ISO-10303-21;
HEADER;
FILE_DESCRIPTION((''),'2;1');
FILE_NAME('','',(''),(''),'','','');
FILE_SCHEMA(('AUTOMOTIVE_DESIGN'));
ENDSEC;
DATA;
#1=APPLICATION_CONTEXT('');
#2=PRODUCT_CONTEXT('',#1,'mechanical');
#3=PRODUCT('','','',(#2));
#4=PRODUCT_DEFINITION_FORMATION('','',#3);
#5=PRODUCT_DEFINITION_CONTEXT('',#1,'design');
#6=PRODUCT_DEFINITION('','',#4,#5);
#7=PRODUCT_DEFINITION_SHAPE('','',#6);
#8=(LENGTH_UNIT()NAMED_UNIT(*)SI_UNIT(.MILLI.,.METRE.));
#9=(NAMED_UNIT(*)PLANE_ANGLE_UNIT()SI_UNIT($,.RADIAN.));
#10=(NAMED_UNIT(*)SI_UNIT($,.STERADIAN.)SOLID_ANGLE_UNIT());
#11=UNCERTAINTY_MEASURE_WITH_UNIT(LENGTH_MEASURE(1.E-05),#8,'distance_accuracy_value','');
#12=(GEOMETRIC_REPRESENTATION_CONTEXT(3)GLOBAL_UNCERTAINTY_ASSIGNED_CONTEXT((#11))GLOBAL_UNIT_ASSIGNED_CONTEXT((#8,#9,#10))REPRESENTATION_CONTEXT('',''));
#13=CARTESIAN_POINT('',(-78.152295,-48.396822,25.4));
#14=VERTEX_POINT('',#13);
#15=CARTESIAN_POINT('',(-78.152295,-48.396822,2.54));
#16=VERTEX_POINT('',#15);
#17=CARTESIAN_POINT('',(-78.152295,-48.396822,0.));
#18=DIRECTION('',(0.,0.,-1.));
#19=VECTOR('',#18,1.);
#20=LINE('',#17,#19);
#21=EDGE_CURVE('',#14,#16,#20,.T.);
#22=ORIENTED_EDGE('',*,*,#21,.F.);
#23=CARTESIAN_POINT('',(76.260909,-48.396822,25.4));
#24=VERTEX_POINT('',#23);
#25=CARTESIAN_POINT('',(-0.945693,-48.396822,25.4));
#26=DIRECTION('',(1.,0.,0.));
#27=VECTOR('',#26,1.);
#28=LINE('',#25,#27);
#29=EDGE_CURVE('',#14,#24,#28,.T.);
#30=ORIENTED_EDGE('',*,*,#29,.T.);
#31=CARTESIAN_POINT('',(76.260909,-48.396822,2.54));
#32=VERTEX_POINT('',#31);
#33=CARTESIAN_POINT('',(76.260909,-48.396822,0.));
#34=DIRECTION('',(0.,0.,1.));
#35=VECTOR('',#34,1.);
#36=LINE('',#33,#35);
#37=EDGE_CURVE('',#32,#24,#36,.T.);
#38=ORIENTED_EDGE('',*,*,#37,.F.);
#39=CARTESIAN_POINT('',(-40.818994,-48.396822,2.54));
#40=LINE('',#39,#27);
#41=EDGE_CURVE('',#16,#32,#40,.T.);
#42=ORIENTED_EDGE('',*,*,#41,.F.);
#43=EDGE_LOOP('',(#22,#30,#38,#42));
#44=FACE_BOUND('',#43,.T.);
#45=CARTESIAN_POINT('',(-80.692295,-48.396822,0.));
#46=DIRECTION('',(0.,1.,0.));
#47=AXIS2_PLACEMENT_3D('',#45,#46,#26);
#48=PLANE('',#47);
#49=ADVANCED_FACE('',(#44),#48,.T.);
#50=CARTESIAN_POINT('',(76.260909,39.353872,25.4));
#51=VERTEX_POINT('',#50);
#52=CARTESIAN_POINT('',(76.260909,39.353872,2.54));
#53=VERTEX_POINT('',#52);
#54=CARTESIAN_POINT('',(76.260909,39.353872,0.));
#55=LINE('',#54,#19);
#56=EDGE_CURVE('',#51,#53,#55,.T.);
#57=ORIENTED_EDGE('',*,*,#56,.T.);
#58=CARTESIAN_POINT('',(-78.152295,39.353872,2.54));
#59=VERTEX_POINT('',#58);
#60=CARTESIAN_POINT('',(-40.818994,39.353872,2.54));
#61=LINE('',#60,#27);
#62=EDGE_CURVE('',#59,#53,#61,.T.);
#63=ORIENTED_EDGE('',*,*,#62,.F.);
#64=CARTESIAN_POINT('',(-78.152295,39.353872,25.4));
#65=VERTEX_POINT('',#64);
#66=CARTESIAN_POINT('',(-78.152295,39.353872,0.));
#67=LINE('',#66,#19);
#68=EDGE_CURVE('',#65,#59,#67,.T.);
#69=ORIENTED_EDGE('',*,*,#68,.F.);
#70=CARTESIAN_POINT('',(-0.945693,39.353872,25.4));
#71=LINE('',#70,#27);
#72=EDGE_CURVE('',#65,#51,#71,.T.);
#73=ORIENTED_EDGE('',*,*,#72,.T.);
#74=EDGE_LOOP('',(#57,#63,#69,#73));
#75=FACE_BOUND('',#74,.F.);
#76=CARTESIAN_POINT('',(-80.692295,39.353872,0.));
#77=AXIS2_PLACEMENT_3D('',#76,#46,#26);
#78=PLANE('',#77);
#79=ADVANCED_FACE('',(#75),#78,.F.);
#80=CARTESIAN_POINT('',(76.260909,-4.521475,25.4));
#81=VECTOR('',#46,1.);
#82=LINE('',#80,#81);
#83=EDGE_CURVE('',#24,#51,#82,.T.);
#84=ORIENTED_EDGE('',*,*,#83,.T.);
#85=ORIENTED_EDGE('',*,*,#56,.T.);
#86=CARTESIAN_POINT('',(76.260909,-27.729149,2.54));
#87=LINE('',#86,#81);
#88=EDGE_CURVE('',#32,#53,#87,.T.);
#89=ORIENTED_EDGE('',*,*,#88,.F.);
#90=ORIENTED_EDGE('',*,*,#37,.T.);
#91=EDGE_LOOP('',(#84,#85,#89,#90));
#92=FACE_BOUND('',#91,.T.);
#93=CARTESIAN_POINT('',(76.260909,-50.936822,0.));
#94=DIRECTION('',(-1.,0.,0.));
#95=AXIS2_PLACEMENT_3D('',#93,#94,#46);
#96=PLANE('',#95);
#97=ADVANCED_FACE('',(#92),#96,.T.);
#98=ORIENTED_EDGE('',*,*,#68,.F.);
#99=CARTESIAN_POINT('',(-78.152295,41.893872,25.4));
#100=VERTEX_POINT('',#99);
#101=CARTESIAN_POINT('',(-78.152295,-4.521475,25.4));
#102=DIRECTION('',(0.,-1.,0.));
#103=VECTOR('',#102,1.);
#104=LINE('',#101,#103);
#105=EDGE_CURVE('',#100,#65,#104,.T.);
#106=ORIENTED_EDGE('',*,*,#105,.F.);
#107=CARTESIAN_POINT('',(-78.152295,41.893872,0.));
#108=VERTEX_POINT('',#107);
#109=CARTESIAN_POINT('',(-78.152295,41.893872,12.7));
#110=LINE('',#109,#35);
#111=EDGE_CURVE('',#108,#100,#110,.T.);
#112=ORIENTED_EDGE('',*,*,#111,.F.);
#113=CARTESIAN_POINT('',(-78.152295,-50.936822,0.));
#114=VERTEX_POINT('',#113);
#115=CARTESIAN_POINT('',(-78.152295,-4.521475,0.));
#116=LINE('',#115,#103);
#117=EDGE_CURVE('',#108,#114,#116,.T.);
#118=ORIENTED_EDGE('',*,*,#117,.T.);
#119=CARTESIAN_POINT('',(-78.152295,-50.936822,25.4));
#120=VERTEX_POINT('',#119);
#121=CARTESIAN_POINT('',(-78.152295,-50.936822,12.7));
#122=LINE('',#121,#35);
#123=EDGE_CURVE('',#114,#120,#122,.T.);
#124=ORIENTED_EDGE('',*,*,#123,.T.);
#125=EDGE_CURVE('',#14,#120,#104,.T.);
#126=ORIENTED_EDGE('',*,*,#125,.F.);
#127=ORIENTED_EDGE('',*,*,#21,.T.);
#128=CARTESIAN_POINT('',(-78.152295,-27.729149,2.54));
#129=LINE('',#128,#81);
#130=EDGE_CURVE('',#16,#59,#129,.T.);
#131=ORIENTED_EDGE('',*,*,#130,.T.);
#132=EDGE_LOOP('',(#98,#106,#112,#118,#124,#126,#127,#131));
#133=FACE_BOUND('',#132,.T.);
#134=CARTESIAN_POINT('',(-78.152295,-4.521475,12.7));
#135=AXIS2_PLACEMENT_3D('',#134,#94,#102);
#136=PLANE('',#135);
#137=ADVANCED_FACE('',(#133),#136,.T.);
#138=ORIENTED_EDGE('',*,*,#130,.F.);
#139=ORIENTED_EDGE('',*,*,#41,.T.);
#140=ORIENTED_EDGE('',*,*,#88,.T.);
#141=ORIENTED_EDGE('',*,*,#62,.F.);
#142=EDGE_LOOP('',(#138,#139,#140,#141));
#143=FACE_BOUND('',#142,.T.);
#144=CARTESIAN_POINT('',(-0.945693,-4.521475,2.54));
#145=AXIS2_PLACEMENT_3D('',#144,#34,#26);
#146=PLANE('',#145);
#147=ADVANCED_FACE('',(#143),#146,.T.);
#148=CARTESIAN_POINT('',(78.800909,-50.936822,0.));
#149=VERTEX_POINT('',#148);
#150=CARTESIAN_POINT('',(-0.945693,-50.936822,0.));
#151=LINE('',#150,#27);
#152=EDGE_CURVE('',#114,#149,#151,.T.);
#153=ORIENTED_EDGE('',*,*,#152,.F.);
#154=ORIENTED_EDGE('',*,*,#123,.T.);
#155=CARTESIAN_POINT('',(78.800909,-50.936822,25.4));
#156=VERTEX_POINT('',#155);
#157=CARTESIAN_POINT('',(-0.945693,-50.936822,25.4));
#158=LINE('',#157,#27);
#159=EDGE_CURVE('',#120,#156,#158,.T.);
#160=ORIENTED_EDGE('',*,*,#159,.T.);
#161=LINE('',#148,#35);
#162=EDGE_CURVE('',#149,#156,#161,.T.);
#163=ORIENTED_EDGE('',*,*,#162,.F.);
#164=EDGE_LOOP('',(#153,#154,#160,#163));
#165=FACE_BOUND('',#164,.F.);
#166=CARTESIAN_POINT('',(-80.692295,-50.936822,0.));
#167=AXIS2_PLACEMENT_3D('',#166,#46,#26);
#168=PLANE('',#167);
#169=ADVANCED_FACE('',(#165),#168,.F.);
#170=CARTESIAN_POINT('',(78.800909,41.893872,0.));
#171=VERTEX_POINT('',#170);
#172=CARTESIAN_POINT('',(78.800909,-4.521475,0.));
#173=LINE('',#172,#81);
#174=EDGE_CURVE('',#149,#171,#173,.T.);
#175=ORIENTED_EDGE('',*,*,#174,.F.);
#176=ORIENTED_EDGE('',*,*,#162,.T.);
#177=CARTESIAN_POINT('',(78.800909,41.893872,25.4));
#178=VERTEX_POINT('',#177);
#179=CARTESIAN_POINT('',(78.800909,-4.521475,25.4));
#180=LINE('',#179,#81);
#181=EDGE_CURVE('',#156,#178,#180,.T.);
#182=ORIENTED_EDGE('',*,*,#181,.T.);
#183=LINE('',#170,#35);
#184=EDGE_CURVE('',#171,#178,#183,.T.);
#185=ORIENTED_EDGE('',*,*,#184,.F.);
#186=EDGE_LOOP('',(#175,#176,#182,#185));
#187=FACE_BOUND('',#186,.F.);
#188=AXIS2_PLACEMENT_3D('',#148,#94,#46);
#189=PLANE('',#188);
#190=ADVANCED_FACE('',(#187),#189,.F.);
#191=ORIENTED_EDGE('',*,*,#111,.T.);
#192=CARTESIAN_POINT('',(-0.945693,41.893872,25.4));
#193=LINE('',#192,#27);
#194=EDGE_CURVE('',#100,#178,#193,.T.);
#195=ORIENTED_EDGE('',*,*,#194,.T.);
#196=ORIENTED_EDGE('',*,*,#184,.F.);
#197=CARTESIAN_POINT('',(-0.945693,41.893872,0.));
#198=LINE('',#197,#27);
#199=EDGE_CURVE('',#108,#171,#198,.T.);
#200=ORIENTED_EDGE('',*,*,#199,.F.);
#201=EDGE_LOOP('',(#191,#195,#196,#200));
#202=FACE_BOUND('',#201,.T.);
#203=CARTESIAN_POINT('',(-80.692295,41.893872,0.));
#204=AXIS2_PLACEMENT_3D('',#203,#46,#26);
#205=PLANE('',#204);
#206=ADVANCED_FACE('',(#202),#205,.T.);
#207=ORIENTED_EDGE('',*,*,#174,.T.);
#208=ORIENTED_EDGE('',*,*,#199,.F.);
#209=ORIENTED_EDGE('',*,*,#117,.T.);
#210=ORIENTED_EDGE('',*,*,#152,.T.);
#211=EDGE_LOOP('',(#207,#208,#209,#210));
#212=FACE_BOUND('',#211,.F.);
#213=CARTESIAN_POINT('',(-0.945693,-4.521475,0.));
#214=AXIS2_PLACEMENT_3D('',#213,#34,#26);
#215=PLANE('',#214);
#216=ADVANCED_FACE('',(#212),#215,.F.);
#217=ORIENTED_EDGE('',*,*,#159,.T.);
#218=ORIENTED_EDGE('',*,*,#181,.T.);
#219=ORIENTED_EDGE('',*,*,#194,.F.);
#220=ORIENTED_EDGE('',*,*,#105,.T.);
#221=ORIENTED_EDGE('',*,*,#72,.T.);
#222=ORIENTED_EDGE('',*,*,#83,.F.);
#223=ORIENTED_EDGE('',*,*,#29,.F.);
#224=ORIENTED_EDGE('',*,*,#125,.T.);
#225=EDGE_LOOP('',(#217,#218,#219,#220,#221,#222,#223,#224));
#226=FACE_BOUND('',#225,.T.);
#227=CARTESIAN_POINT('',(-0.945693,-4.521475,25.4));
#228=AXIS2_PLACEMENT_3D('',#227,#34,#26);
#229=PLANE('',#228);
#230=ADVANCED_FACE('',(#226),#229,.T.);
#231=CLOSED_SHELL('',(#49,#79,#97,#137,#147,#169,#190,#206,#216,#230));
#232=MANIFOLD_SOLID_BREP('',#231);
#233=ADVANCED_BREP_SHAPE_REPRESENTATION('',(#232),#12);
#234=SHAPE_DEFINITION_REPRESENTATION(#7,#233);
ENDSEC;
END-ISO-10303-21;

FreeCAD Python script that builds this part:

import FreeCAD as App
import Part
import Sketcher
from FreeCAD import Vector
Q = App.Units.Quantity


def faces_at(feature, points):
    """Names of the faces that lie closest to the given points."""
    faces = feature.Shape.Faces
    near = lambda p: min(range(len(faces)), key=lambda i: faces[i].distToShape(Part.Vertex(*p))[0])
    return sorted({f"Face{near(p) + 1}" for p in points})

doc = App.newDocument("Part")
params = doc.addObject("Spreadsheet::Sheet", "Params")
for row, (alias, value) in enumerate([
    ("pad1_length", "1 in"),
    ("thickness_wall", "0.1 in"),
    ("sketch2_height", "1 in"),
    ("pocket1_length", "0.1 in"),
], start=1):
    params.set(f"A{row}", alias)
    params.set(f"B{row}", "=" + value)
    params.setAlias(f"B{row}", alias)

body = doc.addObject("PartDesign::Body", "Body")

# Sketch on XY plane
sketch1 = doc.addObject("Sketcher::SketchObject", "Sketch")
body.addObject(sketch1)
sketch1.AttachmentSupport = (doc.XY_Plane, [""])
sketch1.MapMode = "FlatFace"
sketch1.addGeometry([
    Part.LineSegment(Vector(-80.692295, 41.893872, 0), Vector(-80.692295, -50.936822, 0)),
    Part.LineSegment(Vector(-80.692295, -50.936822, 0), Vector(78.800909, -50.936822, 0)),
    Part.LineSegment(Vector(78.800909, -50.936822, 0), Vector(78.800909, 41.893872, 0)),
    Part.LineSegment(Vector(78.800909, 41.893872, 0), Vector(-80.692295, 41.893872, 0)),
], False)
sketch1.addConstraint([
    Sketcher.Constraint("Coincident", 0, 2, 1, 1),
    Sketcher.Constraint("Coincident", 1, 2, 2, 1),
    Sketcher.Constraint("Coincident", 2, 2, 3, 1),
    Sketcher.Constraint("Coincident", 3, 2, 0, 1),
    Sketcher.Constraint("Vertical", 0),
    Sketcher.Constraint("Horizontal", 1),
    Sketcher.Constraint("Vertical", 2),
    Sketcher.Constraint("Horizontal", 3),
    Sketcher.Constraint("DistanceX", 1, 1, 1, 2, Q("159.493204 mm")),
    Sketcher.Constraint("DistanceY", 0, 2, 0, 1, Q("92.830694 mm")),
    Sketcher.Constraint("DistanceX", -1, 1, 1, 2, Q("78.800909 mm")),
    Sketcher.Constraint("DistanceY", 0, 2, -1, 1, Q("50.936822 mm")),
])
pad1 = doc.addObject("PartDesign::Pad", "Pad")
body.addObject(pad1)
pad1.Profile = sketch1
pad1.setExpression("Length", "Params.pad1_length")
doc.recompute()

thickness = doc.addObject("PartDesign::Thickness", "Thickness")
body.addObject(thickness)
thickness.Base = (pad1, faces_at(pad1, [(-0.946, -4.521, 25.4)]))
thickness.setExpression("Value", "Params.thickness_wall")
thickness.Reversed = True
thickness.Join = "Arc"

# Sketch on YZ plane
sketch2 = doc.addObject("Sketcher::SketchObject", "Sketch001")
body.addObject(sketch2)
sketch2.AttachmentSupport = (doc.YZ_Plane, [""])
sketch2.MapMode = "FlatFace"
sketch2.AttachmentOffset = App.Placement(Vector(0, 0, -80.692295), App.Rotation())
sketch2.addGeometry([
    Part.LineSegment(Vector(41.893872, 25.4, 0), Vector(41.893872, 0, 0)),
    Part.LineSegment(Vector(41.893872, 0, 0), Vector(-50.936822, 0, 0)),
    Part.LineSegment(Vector(-50.936822, 0, 0), Vector(-50.936822, 25.4, 0)),
    Part.LineSegment(Vector(-50.936822, 25.4, 0), Vector(41.893872, 25.4, 0)),
], False)
sketch2.addConstraint([
    Sketcher.Constraint("Coincident", 0, 2, 1, 1),
    Sketcher.Constraint("Coincident", 1, 2, 2, 1),
    Sketcher.Constraint("Coincident", 2, 2, 3, 1),
    Sketcher.Constraint("Coincident", 3, 2, 0, 1),
    Sketcher.Constraint("Vertical", 0),
    Sketcher.Constraint("Horizontal", 1),
    Sketcher.Constraint("Vertical", 2),
    Sketcher.Constraint("Horizontal", 3),
    Sketcher.Constraint("PointOnObject", 0, 2, -1),
    Sketcher.Constraint("DistanceY", 0, 2, 0, 1, Q("1 in")),
    Sketcher.Constraint("DistanceX", 1, 2, 1, 1, Q("92.830694 mm")),
    Sketcher.Constraint("DistanceX", -1, 1, 0, 2, Q("41.893872 mm")),
])
sketch2.setExpression("Constraints[9]", "Params.sketch2_height")
pocket1 = doc.addObject("PartDesign::Pocket", "Pocket")
body.addObject(pocket1)
pocket1.Profile = sketch2
pocket1.setExpression("Length", "Params.pocket1_length")
pocket1.Reversed = True

doc.recompute()
